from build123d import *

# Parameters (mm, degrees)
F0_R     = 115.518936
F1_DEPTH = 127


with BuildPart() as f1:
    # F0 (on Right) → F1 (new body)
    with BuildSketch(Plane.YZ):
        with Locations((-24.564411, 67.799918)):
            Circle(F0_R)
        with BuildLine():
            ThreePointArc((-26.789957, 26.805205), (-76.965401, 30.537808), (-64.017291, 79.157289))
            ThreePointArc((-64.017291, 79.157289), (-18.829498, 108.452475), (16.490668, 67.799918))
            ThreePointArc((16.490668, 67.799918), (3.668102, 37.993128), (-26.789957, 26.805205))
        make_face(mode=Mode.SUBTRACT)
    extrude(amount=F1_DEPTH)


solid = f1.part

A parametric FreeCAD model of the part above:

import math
import FreeCAD as App
import Part
import Sketcher

V = App.Vector
Q = App.Units.Quantity

doc = App.newDocument("Part")
body = doc.addObject("PartDesign::Body", "Body")

# Sketch on YZ plane
sketch1 = doc.addObject("Sketcher::SketchObject", "Sketch")
body.addObject(sketch1)
sketch1.AttachmentSupport = (doc.YZ_Plane, [""])
sketch1.MapMode = "FlatFace"
sketch1.addGeometry(Part.Circle(V(-25, 68, 0), V(0, 0, 1), 116), False)
sketch1.addGeometry(Part.ArcOfCircle(Part.Circle(V(-25, 68, 0), V(0, 0, 1), 41), math.radians(-93), math.radians(0)), False)
sketch1.addGeometry(Part.ArcOfCircle(Part.Circle(V(-50, 49, 0), V(0, 0, 1), 33), math.radians(115), math.radians(316)), False)
sketch1.addGeometry(Part.ArcOfCircle(Part.Circle(V(-25, 68, 0), V(0, 0, 1), 41), math.radians(0), math.radians(164)), False)
sketch1.addConstraint(Sketcher.Constraint("Coincident", 1, 1, 2, 2))
sketch1.addConstraint(Sketcher.Constraint("Coincident", 2, 1, 3, 2))
sketch1.addConstraint(Sketcher.Constraint("Tangent", 3, 1, 1, 2))
sketch1.addConstraint(Sketcher.Constraint("Coincident", 1, 3, 0, 3))
sketch1.addConstraint(Sketcher.Constraint("Equal", 1, 3))
sketch1.addConstraint(Sketcher.Constraint("Horizontal", 1, 3, 3, 1))
sketch1.addConstraint(Sketcher.Constraint("Diameter", 0, 231.037872))
sketch1.addConstraint(Sketcher.Constraint("Radius", 1, 41.055079))
sketch1.addConstraint(Sketcher.Constraint("Radius", 2, 32.683215))
sketch1.addConstraint(Sketcher.Constraint("DistanceX", 0, 3, -1, 1, 24.564411))
sketch1.addConstraint(Sketcher.Constraint("DistanceY", -1, 1, 0, 3, 67.799918))
sketch1.addConstraint(Sketcher.Constraint("DistanceX", 2, 1, -1, 1, 64.017291))
sketch1.addConstraint(Sketcher.Constraint("DistanceX", 2, 3, 1, 1, 23.539888))
pad1 = doc.addObject("PartDesign::Pad", "Pad")
body.addObject(pad1)
pad1.Profile = sketch1
pad1.Length = Q("5 in")

doc.recompute()
